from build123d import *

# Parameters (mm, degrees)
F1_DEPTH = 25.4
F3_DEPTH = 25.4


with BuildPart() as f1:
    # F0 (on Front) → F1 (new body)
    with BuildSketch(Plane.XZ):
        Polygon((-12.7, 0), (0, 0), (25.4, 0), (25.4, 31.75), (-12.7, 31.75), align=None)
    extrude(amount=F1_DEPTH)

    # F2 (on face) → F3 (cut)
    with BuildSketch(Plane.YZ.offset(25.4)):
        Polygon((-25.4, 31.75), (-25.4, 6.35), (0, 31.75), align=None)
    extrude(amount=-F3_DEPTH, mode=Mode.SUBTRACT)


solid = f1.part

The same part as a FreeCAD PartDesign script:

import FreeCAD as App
import Part
import Sketcher
from FreeCAD import Vector
Q = App.Units.Quantity


def add_polygon(sketch, points):
    """Adds a closed chain of lines whose ends are joined by coincident constraints."""
    first, n = sketch.GeometryCount, len(points)
    for a, b in zip(points, points[1:] + points[:1]):
        sketch.addGeometry(Part.LineSegment(App.Vector(*a, 0), App.Vector(*b, 0)), False)
    for i in range(n):
        sketch.addConstraint(Sketcher.Constraint("Coincident", first + i, 2, first + (i + 1) % n, 1))

doc = App.newDocument("Part")
body = doc.addObject("PartDesign::Body", "Body")

# Sketch on XZ plane
sketch1 = body.newObject("Sketcher::SketchObject", "Sketch")
sketch1.AttachmentSupport = (doc.getObject("XZ_Plane"), [""])
sketch1.MapMode = "FlatFace"
add_polygon(sketch1, [(-13, 0), (25, 0), (25, 32), (-13, 32)])  # lines 0-3
sketch1.addConstraint([
    Sketcher.Constraint("Horizontal", 0),
    Sketcher.Constraint("Vertical", 1),
    Sketcher.Constraint("Horizontal", 2),
    Sketcher.Constraint("Vertical", 3),
    Sketcher.Constraint("PointOnObject", 0, 2, -1),
    Sketcher.Constraint("DistanceX", 0, 1, 0, 2, Q("1.5 in")),
    Sketcher.Constraint("DistanceX", -1, 1, 0, 2, Q("1 in")),
    Sketcher.Constraint("DistanceY", 1, 1, 1, 2, Q("1.25 in")),
])
pad1 = body.newObject("PartDesign::Pad", "Pad")
pad1.Profile = sketch1
pad1.Length = Q("1 in")

# Sketch on YZ plane
sketch2 = body.newObject("Sketcher::SketchObject", "Sketch001")
sketch2.AttachmentSupport = (doc.getObject("YZ_Plane"), [""])
sketch2.MapMode = "FlatFace"
sketch2.AttachmentOffset = App.Placement(Vector(0, 0, 1 * 25.4), App.Rotation())
add_polygon(sketch2, [(-25, 32), (-25, 6), (0, 32)])  # lines 0-2
sketch2.addConstraint([
    Sketcher.Constraint("Vertical", 0),
    Sketcher.Constraint("Horizontal", 2),
    Sketcher.Constraint("PointOnObject", 1, 2, -2),
    Sketcher.Constraint("Equal", 2, 0),
    Sketcher.Constraint("DistanceX", 2, 2, 2, 1, Q("1 in")),
    Sketcher.Constraint("DistanceY", -1, 1, 0, 2, Q("0.25 in")),
])
pocket1 = body.newObject("PartDesign::Pocket", "Pocket")
pocket1.Profile = sketch2
pocket1.Length = Q("1 in")

doc.recompute()
